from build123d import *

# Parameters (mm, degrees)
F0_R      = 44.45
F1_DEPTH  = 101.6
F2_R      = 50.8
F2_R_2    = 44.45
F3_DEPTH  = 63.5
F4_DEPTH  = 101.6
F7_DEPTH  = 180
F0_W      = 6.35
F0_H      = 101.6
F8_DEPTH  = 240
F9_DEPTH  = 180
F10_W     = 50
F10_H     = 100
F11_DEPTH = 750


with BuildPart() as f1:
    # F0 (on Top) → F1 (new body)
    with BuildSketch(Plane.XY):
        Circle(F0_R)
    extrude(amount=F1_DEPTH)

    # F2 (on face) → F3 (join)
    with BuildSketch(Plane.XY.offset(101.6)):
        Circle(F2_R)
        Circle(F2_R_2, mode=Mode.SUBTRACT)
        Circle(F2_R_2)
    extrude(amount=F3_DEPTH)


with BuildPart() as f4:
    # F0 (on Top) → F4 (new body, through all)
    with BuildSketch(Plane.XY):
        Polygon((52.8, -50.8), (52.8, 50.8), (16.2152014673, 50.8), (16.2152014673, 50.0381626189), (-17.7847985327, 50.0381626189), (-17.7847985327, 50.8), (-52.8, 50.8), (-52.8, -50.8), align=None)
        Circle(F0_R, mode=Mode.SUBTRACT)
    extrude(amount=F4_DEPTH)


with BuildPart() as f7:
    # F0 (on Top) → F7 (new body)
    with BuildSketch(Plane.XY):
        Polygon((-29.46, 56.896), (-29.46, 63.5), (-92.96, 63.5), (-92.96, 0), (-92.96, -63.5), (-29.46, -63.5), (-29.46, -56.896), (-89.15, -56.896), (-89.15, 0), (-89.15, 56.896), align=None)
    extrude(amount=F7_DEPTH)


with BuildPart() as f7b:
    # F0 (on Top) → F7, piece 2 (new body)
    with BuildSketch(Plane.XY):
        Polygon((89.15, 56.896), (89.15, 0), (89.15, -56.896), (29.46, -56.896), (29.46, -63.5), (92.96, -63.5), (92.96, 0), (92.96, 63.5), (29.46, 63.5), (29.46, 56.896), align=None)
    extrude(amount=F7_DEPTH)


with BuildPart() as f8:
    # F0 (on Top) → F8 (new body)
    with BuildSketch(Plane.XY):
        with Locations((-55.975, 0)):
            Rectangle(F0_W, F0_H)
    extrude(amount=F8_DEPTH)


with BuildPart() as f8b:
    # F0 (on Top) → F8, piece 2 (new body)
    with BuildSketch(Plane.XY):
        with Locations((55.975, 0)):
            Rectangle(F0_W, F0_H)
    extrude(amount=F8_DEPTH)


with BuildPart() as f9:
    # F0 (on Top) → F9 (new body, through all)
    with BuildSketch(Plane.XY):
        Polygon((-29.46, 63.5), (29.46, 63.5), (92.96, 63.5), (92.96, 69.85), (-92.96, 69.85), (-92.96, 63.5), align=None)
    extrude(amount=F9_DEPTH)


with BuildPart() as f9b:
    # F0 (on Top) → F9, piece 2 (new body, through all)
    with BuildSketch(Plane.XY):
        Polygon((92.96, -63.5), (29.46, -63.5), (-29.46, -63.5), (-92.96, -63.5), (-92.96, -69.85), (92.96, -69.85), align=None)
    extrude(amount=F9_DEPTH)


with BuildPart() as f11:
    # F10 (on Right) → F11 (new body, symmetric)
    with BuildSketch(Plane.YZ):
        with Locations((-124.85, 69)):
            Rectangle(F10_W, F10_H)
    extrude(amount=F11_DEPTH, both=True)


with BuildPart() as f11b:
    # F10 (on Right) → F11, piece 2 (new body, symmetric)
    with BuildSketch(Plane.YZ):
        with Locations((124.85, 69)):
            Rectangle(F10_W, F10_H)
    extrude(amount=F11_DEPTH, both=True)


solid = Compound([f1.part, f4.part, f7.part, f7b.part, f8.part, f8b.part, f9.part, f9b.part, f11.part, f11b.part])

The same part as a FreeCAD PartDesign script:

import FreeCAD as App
import Part
import Sketcher

V = App.Vector
Q = App.Units.Quantity

doc = App.newDocument("Part")
params = doc.addObject("Spreadsheet::Sheet", "Params")
for row, (alias, value) in enumerate([
    ("sketch1_diameter", "3.5 in"),
    ("pad1_length", "4 in"),
    ("sketch2_diameter", "4 in"),
    ("pad2_length", "2.5 in"),
    ("sketch3_diameter", "3.5 in"),
    ("sketch3_height", "4 in"),
    ("pad3_length", "4 in"),
    ("sketch4_height", "5 in"),
    ("sketch4_width", "2.5 in"),
    ("sketch4_width2", "2.35 in"),
    ("sketch4_height2", "0.26 in"),
    ("pad4_length", "180 mm"),
    ("sketch5_height", "5 in"),
    ("sketch5_width", "2.5 in"),
    ("sketch5_width2", "2.35 in"),
    ("sketch5_height2", "4.48 in"),
    ("pad5_length", "180 mm"),
    ("sketch6_height", "4 in"),
    ("sketch6_width", "0.25 in"),
    ("pad6_length", "240 mm"),
    ("sketch7_height", "4 in"),
    ("sketch7_width", "0.25 in"),
    ("pad7_length", "240 mm"),
    ("sketch8_height", "0.25 in"),
    ("pad8_length", "180 mm"),
    ("sketch9_height", "0.25 in"),
    ("pad9_length", "180 mm"),
    ("pad10_length", "1500 mm"),
    ("pad11_length", "1500 mm"),
], start=1):
    params.set(f"A{row}", alias)
    params.set(f"B{row}", "=" + value)
    params.setAlias(f"B{row}", alias)

body = doc.addObject("PartDesign::Body", "Body")

# Sketch on XY plane
sketch1 = body.newObject("Sketcher::SketchObject", "Sketch")
sketch1.AttachmentSupport = (doc.getObject("XY_Plane"), [""])
sketch1.MapMode = "FlatFace"
sketch1.addGeometry(Part.Circle(V(0, 0, 0), V(0, 0, 1), 44), False)
sketch1.addConstraint([
    Sketcher.Constraint("Coincident", 0, 3, -1, 1),
    Sketcher.Constraint("Diameter", 0, Q("3.5 in")),
])
sketch1.setExpression("Constraints[1]", "Params.sketch1_diameter")
pad1 = body.newObject("PartDesign::Pad", "Pad")
pad1.Profile = sketch1
pad1.setExpression("Length", "Params.pad1_length")

# Sketch on XY plane
sketch2 = body.newObject("Sketcher::SketchObject", "Sketch001")
sketch2.AttachmentSupport = (doc.getObject("XY_Plane"), [""])
sketch2.MapMode = "FlatFace"
sketch2.AttachmentOffset = App.Placement(V(0, 0, 4 * 25.4), App.Rotation())
sketch2.addGeometry(Part.Circle(V(0, 0, 0), V(0, 0, 1), 51), False)
sketch2.addConstraint([
    Sketcher.Constraint("Coincident", 0, 3, -1, 1),
    Sketcher.Constraint("Diameter", 0, Q("4 in")),
])
sketch2.setExpression("Constraints[1]", "Params.sketch2_diameter")
pad2 = body.newObject("PartDesign::Pad", "Pad001")
pad2.Profile = sketch2
pad2.setExpression("Length", "Params.pad2_length")
body2 = doc.addObject("PartDesign::Body", "Body001")

# Sketch on XY plane
sketch3 = body2.newObject("Sketcher::SketchObject", "Sketch002")
sketch3.AttachmentSupport = (doc.getObject("XY_Plane001"), [""])
sketch3.MapMode = "FlatFace"
sketch3.addGeometry([
    Part.LineSegment(V(52.8, -50.8, 0), V(52.8, 50.8, 0)),  # 0
    Part.LineSegment(V(52.8, 50.8, 0), V(16.2, 50.8, 0)),  # 1
    Part.LineSegment(V(16.2, 50.8, 0), V(16.2, 50, 0)),  # 2
    Part.LineSegment(V(16.2, 50, 0), V(-17.8, 50, 0)),  # 3
    Part.LineSegment(V(-17.8, 50, 0), V(-17.8, 50.8, 0)),  # 4
    Part.LineSegment(V(-17.8, 50.8, 0), V(-52.8, 50.8, 0)),  # 5
    Part.LineSegment(V(-52.8, 50.8, 0), V(-52.8, -50.8, 0)),  # 6
    Part.LineSegment(V(-52.8, -50.8, 0), V(52.8, -50.8, 0)),  # 7
    Part.Circle(V(0, 0, 0), V(0, 0, 1), 44.5),  # 8
], False)
sketch3.addConstraint([
    Sketcher.Constraint("Coincident", 0, 2, 1, 1),
    Sketcher.Constraint("Coincident", 1, 2, 2, 1),
    Sketcher.Constraint("Coincident", 2, 2, 3, 1),
    Sketcher.Constraint("Coincident", 3, 2, 4, 1),
    Sketcher.Constraint("Coincident", 4, 2, 5, 1),
    Sketcher.Constraint("Coincident", 5, 2, 6, 1),
    Sketcher.Constraint("Coincident", 6, 2, 7, 1),
    Sketcher.Constraint("Coincident", 7, 2, 0, 1),
    Sketcher.Constraint("Vertical", 0),
    Sketcher.Constraint("Horizontal", 1),
    Sketcher.Constraint("Vertical", 2),
    Sketcher.Constraint("Horizontal", 3),
    Sketcher.Constraint("Vertical", 4),
    Sketcher.Constraint("Horizontal", 5),
    Sketcher.Constraint("Vertical", 6),
    Sketcher.Constraint("Horizontal", 7),
    Sketcher.Constraint("Coincident", 8, 3, -1, 1),
    Sketcher.Constraint("Symmetric", 0, 2, 6, 2, -1, 1),
    Sketcher.Constraint("Horizontal", 1, 2, 4, 2),
    Sketcher.Constraint("Diameter", 8, Q("3.5 in")),
    Sketcher.Constraint("DistanceY", 0, 1, 0, 2, Q("4 in")),
    Sketcher.Constraint("DistanceX", 1, 2, 1, 1, Q("36.584799 mm")),
    Sketcher.Constraint("DistanceX", 3, 2, 3, 1, Q("34 mm")),
    Sketcher.Constraint("DistanceX", 5, 2, 5, 1, Q("35.015201 mm")),
    Sketcher.Constraint("DistanceY", 2, 2, 2, 1, Q("0.761837 mm")),
])
sketch3.setExpression("Constraints[19]", "Params.sketch3_diameter")
sketch3.setExpression("Constraints[20]", "Params.sketch3_height")
pad3 = body2.newObject("PartDesign::Pad", "Pad002")
pad3.Profile = sketch3
pad3.setExpression("Length", "Params.pad3_length")
body3 = doc.addObject("PartDesign::Body", "Body002")

# Sketch on XY plane
sketch4 = body3.newObject("Sketcher::SketchObject", "Sketch003")
sketch4.AttachmentSupport = (doc.getObject("XY_Plane002"), [""])
sketch4.MapMode = "FlatFace"
sketch4.addGeometry([
    Part.LineSegment(V(-29, 57, 0), V(-29, 64, 0)),  # 0
    Part.LineSegment(V(-29, 64, 0), V(-93, 64, 0)),  # 1
    Part.LineSegment(V(-93, 64, 0), V(-93, -64, 0)),  # 2
    Part.LineSegment(V(-93, -64, 0), V(-29, -64, 0)),  # 3
    Part.LineSegment(V(-29, -64, 0), V(-29, -57, 0)),  # 4
    Part.LineSegment(V(-29, -57, 0), V(-89, -57, 0)),  # 5
    Part.LineSegment(V(-89, -57, 0), V(-89, 57, 0)),  # 6
    Part.LineSegment(V(-89, 57, 0), V(-29, 57, 0)),  # 7
], False)
sketch4.addConstraint([
    Sketcher.Constraint("Coincident", 0, 2, 1, 1),
    Sketcher.Constraint("Coincident", 1, 2, 2, 1),
    Sketcher.Constraint("Coincident", 2, 2, 3, 1),
    Sketcher.Constraint("Coincident", 3, 2, 4, 1),
    Sketcher.Constraint("Coincident", 4, 2, 5, 1),
    Sketcher.Constraint("Coincident", 5, 2, 6, 1),
    Sketcher.Constraint("Coincident", 6, 2, 7, 1),
    Sketcher.Constraint("Coincident", 7, 2, 0, 1),
    Sketcher.Constraint("Vertical", 0),
    Sketcher.Constraint("Horizontal", 1),
    Sketcher.Constraint("Vertical", 2),
    Sketcher.Constraint("Horizontal", 3),
    Sketcher.Constraint("Vertical", 4),
    Sketcher.Constraint("Horizontal", 5),
    Sketcher.Constraint("Vertical", 6),
    Sketcher.Constraint("Horizontal", 7),
    Sketcher.Constraint("Symmetric", 0, 2, 3, 2, -1),
    Sketcher.Constraint("Equal", 0, 4),
    Sketcher.Constraint("DistanceY", 2, 2, 2, 1, Q("5 in")),
    Sketcher.Constraint("DistanceX", 1, 2, 1, 1, Q("2.5 in")),
    Sketcher.Constraint("DistanceX", 5, 2, 5, 1, Q("2.35 in")),
    Sketcher.Constraint("DistanceY", 0, 1, 0, 2, Q("0.26 in")),
    Sketcher.Constraint("DistanceX", 0, 2, -1, 1, Q("29.46 mm")),
])
sketch4.setExpression("Constraints[18]", "Params.sketch4_height")
sketch4.setExpression("Constraints[19]", "Params.sketch4_width")
sketch4.setExpression("Constraints[20]", "Params.sketch4_width2")
sketch4.setExpression("Constraints[21]", "Params.sketch4_height2")
pad4 = body3.newObject("PartDesign::Pad", "Pad003")
pad4.Profile = sketch4
pad4.setExpression("Length", "Params.pad4_length")
body4 = doc.addObject("PartDesign::Body", "Body003")

# Sketch on XY plane
sketch5 = body4.newObject("Sketcher::SketchObject", "Sketch004")
sketch5.AttachmentSupport = (doc.getObject("XY_Plane003"), [""])
sketch5.MapMode = "FlatFace"
sketch5.addGeometry([
    Part.LineSegment(V(89, 57, 0), V(89, -57, 0)),  # 0
    Part.LineSegment(V(89, -57, 0), V(29, -57, 0)),  # 1
    Part.LineSegment(V(29, -57, 0), V(29, -64, 0)),  # 2
    Part.LineSegment(V(29, -64, 0), V(93, -64, 0)),  # 3
    Part.LineSegment(V(93, -64, 0), V(93, 64, 0)),  # 4
    Part.LineSegment(V(93, 64, 0), V(29, 64, 0)),  # 5
    Part.LineSegment(V(29, 64, 0), V(29, 57, 0)),  # 6
    Part.LineSegment(V(29, 57, 0), V(89, 57, 0)),  # 7
], False)
sketch5.addConstraint([
    Sketcher.Constraint("Coincident", 0, 2, 1, 1),
    Sketcher.Constraint("Coincident", 1, 2, 2, 1),
    Sketcher.Constraint("Coincident", 2, 2, 3, 1),
    Sketcher.Constraint("Coincident", 3, 2, 4, 1),
    Sketcher.Constraint("Coincident", 4, 2, 5, 1),
    Sketcher.Constraint("Coincident", 5, 2, 6, 1),
    Sketcher.Constraint("Coincident", 6, 2, 7, 1),
    Sketcher.Constraint("Coincident", 7, 2, 0, 1),
    Sketcher.Constraint("Vertical", 0),
    Sketcher.Constraint("Horizontal", 1),
    Sketcher.Constraint("Vertical", 2),
    Sketcher.Constraint("Horizontal", 3),
    Sketcher.Constraint("Vertical", 4),
    Sketcher.Constraint("Horizontal", 5),
    Sketcher.Constraint("Vertical", 6),
    Sketcher.Constraint("Horizontal", 7),
    Sketcher.Constraint("Symmetric", 2, 2, 5, 2, -1),
    Sketcher.Constraint("Equal", 2, 6),
    Sketcher.Constraint("DistanceY", 4, 1, 4, 2, Q("5 in")),
    Sketcher.Constraint("DistanceX", 3, 1, 3, 2, Q("2.5 in")),
    Sketcher.Constraint("DistanceX", 1, 2, 1, 1, Q("2.35 in")),
    Sketcher.Constraint("DistanceY", 0, 2, 0, 1, Q("4.48 in")),
    Sketcher.Constraint("DistanceX", -1, 1, 0, 2, Q("89.15 mm")),
])
sketch5.setExpression("Constraints[18]", "Params.sketch5_height")
sketch5.setExpression("Constraints[19]", "Params.sketch5_width")
sketch5.setExpression("Constraints[20]", "Params.sketch5_width2")
sketch5.setExpression("Constraints[21]", "Params.sketch5_height2")
pad5 = body4.newObject("PartDesign::Pad", "Pad004")
pad5.Profile = sketch5
pad5.setExpression("Length", "Params.pad5_length")
body5 = doc.addObject("PartDesign::Body", "Body004")

# Sketch on XY plane
sketch6 = body5.newObject("Sketcher::SketchObject", "Sketch005")
sketch6.AttachmentSupport = (doc.getObject("XY_Plane004"), [""])
sketch6.MapMode = "FlatFace"
sketch6.addGeometry([
    Part.LineSegment(V(-59, 51, 0), V(-59, -51, 0)),
    Part.LineSegment(V(-59, -51, 0), V(-53, -51, 0)),
    Part.LineSegment(V(-53, -51, 0), V(-53, 51, 0)),
    Part.LineSegment(V(-53, 51, 0), V(-59, 51, 0)),
], False)
sketch6.addConstraint([
    Sketcher.Constraint("Coincident", 0, 2, 1, 1),
    Sketcher.Constraint("Coincident", 1, 2, 2, 1),
    Sketcher.Constraint("Coincident", 2, 2, 3, 1),
    Sketcher.Constraint("Coincident", 3, 2, 0, 1),
    Sketcher.Constraint("Vertical", 0),
    Sketcher.Constraint("Horizontal", 1),
    Sketcher.Constraint("Vertical", 2),
    Sketcher.Constraint("Horizontal", 3),
    Sketcher.Constraint("DistanceY", 0, 2, 0, 1, Q("4 in")),
    Sketcher.Constraint("DistanceY", 0, 2, -1, 1, Q("2 in")),
    Sketcher.Constraint("DistanceX", 1, 1, 1, 2, Q("0.25 in")),
    Sketcher.Constraint("DistanceX", 0, 2, -1, 1, Q("59.15 mm")),
])
sketch6.setExpression("Constraints[8]", "Params.sketch6_height")
sketch6.setExpression("Constraints[10]", "Params.sketch6_width")
pad6 = body5.newObject("PartDesign::Pad", "Pad005")
pad6.Profile = sketch6
pad6.setExpression("Length", "Params.pad6_length")
body6 = doc.addObject("PartDesign::Body", "Body005")

# Sketch on XY plane
sketch7 = body6.newObject("Sketcher::SketchObject", "Sketch006")
sketch7.AttachmentSupport = (doc.getObject("XY_Plane005"), [""])
sketch7.MapMode = "FlatFace"
sketch7.addGeometry([
    Part.LineSegment(V(53, 51, 0), V(53, -51, 0)),
    Part.LineSegment(V(53, -51, 0), V(59, -51, 0)),
    Part.LineSegment(V(59, -51, 0), V(59, 51, 0)),
    Part.LineSegment(V(59, 51, 0), V(53, 51, 0)),
], False)
sketch7.addConstraint([
    Sketcher.Constraint("Coincident", 0, 2, 1, 1),
    Sketcher.Constraint("Coincident", 1, 2, 2, 1),
    Sketcher.Constraint("Coincident", 2, 2, 3, 1),
    Sketcher.Constraint("Coincident", 3, 2, 0, 1),
    Sketcher.Constraint("Vertical", 0),
    Sketcher.Constraint("Horizontal", 1),
    Sketcher.Constraint("Vertical", 2),
    Sketcher.Constraint("Horizontal", 3),
    Sketcher.Constraint("DistanceY", 0, 2, 0, 1, Q("4 in")),
    Sketcher.Constraint("DistanceY", 0, 2, -1, 1, Q("2 in")),
    Sketcher.Constraint("DistanceX", 1, 1, 1, 2, Q("0.25 in")),
    Sketcher.Constraint("DistanceX", -1, 1, 0, 2, Q("52.8 mm")),
])
sketch7.setExpression("Constraints[8]", "Params.sketch7_height")
sketch7.setExpression("Constraints[10]", "Params.sketch7_width")
pad7 = body6.newObject("PartDesign::Pad", "Pad006")
pad7.Profile = sketch7
pad7.setExpression("Length", "Params.pad7_length")
body7 = doc.addObject("PartDesign::Body", "Body006")

# Sketch on XY plane
sketch8 = body7.newObject("Sketcher::SketchObject", "Sketch007")
sketch8.AttachmentSupport = (doc.getObject("XY_Plane006"), [""])
sketch8.MapMode = "FlatFace"
sketch8.addGeometry([
    Part.LineSegment(V(93, 64, 0), V(93, 70, 0)),
    Part.LineSegment(V(93, 70, 0), V(-93, 70, 0)),
    Part.LineSegment(V(-93, 70, 0), V(-93, 64, 0)),
    Part.LineSegment(V(-93, 64, 0), V(93, 64, 0)),
], False)
sketch8.addConstraint([
    Sketcher.Constraint("Coincident", 0, 2, 1, 1),
    Sketcher.Constraint("Coincident", 1, 2, 2, 1),
    Sketcher.Constraint("Coincident", 2, 2, 3, 1),
    Sketcher.Constraint("Coincident", 3, 2, 0, 1),
    Sketcher.Constraint("Vertical", 0),
    Sketcher.Constraint("Horizontal", 1),
    Sketcher.Constraint("Vertical", 2),
    Sketcher.Constraint("Horizontal", 3),
    Sketcher.Constraint("DistanceY", 0, 1, 0, 2, Q("0.25 in")),
    Sketcher.Constraint("DistanceY", -1, 1, 2, 2, Q("2.5 in")),
    Sketcher.Constraint("DistanceX", 1, 2, 1, 1, Q("185.92 mm")),
    Sketcher.Constraint("DistanceX", -1, 1, 0, 2, Q("92.96 mm")),
])
sketch8.setExpression("Constraints[8]", "Params.sketch8_height")
pad8 = body7.newObject("PartDesign::Pad", "Pad007")
pad8.Profile = sketch8
pad8.setExpression("Length", "Params.pad8_length")
body8 = doc.addObject("PartDesign::Body", "Body007")

# Sketch on XY plane
sketch9 = body8.newObject("Sketcher::SketchObject", "Sketch008")
sketch9.AttachmentSupport = (doc.getObject("XY_Plane007"), [""])
sketch9.MapMode = "FlatFace"
sketch9.addGeometry([
    Part.LineSegment(V(93, -64, 0), V(-93, -64, 0)),
    Part.LineSegment(V(-93, -64, 0), V(-93, -70, 0)),
    Part.LineSegment(V(-93, -70, 0), V(93, -70, 0)),
    Part.LineSegment(V(93, -70, 0), V(93, -64, 0)),
], False)
sketch9.addConstraint([
    Sketcher.Constraint("Coincident", 0, 2, 1, 1),
    Sketcher.Constraint("Coincident", 1, 2, 2, 1),
    Sketcher.Constraint("Coincident", 2, 2, 3, 1),
    Sketcher.Constraint("Coincident", 3, 2, 0, 1),
    Sketcher.Constraint("Horizontal", 0),
    Sketcher.Constraint("Vertical", 1),
    Sketcher.Constraint("Horizontal", 2),
    Sketcher.Constraint("Vertical", 3),
    Sketcher.Constraint("DistanceY", 1, 2, 1, 1, Q("0.25 in")),
    Sketcher.Constraint("DistanceY", 0, 2, -1, 1, Q("2.5 in")),
    Sketcher.Constraint("DistanceX", 0, 2, 0, 1, Q("185.92 mm")),
    Sketcher.Constraint("DistanceX", 0, 2, -1, 1, Q("92.96 mm")),
])
sketch9.setExpression("Constraints[8]", "Params.sketch9_height")
pad9 = body8.newObject("PartDesign::Pad", "Pad008")
pad9.Profile = sketch9
pad9.setExpression("Length", "Params.pad9_length")
body9 = doc.addObject("PartDesign::Body", "Body008")

# Sketch on YZ plane
sketch10 = body9.newObject("Sketcher::SketchObject", "Sketch009")
sketch10.AttachmentSupport = (doc.getObject("YZ_Plane008"), [""])
sketch10.MapMode = "FlatFace"
sketch10.addGeometry([
    Part.LineSegment(V(-150, 119, 0), V(-150, 19, 0)),
    Part.LineSegment(V(-150, 19, 0), V(-100, 19, 0)),
    Part.LineSegment(V(-100, 19, 0), V(-100, 119, 0)),
    Part.LineSegment(V(-100, 119, 0), V(-150, 119, 0)),
], False)
sketch10.addConstraint([
    Sketcher.Constraint("Coincident", 0, 2, 1, 1),
    Sketcher.Constraint("Coincident", 1, 2, 2, 1),
    Sketcher.Constraint("Coincident", 2, 2, 3, 1),
    Sketcher.Constraint("Coincident", 3, 2, 0, 1),
    Sketcher.Constraint("Vertical", 0),
    Sketcher.Constraint("Horizontal", 1),
    Sketcher.Constraint("Vertical", 2),
    Sketcher.Constraint("Horizontal", 3),
    Sketcher.Constraint("DistanceX", 1, 1, 1, 2, Q("50 mm")),
    Sketcher.Constraint("DistanceY", 0, 2, 0, 1, Q("100 mm")),
    Sketcher.Constraint("DistanceX", 0, 2, -1, 1, Q("149.85 mm")),
    Sketcher.Constraint("DistanceY", -1, 1, 0, 2, Q("19 mm")),
])
pad10 = body9.newObject("PartDesign::Pad", "Pad009")
pad10.Profile = sketch10
pad10.setExpression("Length", "Params.pad10_length")
pad10.Midplane = True
body10 = doc.addObject("PartDesign::Body", "Body009")

# Sketch on YZ plane
sketch11 = body10.newObject("Sketcher::SketchObject", "Sketch010")
sketch11.AttachmentSupport = (doc.getObject("YZ_Plane009"), [""])
sketch11.MapMode = "FlatFace"
sketch11.addGeometry([
    Part.LineSegment(V(100, 119, 0), V(100, 19, 0)),
    Part.LineSegment(V(100, 19, 0), V(150, 19, 0)),
    Part.LineSegment(V(150, 19, 0), V(150, 119, 0)),
    Part.LineSegment(V(150, 119, 0), V(100, 119, 0)),
], False)
sketch11.addConstraint([
    Sketcher.Constraint("Coincident", 0, 2, 1, 1),
    Sketcher.Constraint("Coincident", 1, 2, 2, 1),
    Sketcher.Constraint("Coincident", 2, 2, 3, 1),
    Sketcher.Constraint("Coincident", 3, 2, 0, 1),
    Sketcher.Constraint("Vertical", 0),
    Sketcher.Constraint("Horizontal", 1),
    Sketcher.Constraint("Vertical", 2),
    Sketcher.Constraint("Horizontal", 3),
    Sketcher.Constraint("DistanceX", 1, 1, 1, 2, Q("50 mm")),
    Sketcher.Constraint("DistanceY", 0, 2, 0, 1, Q("100 mm")),
    Sketcher.Constraint("DistanceX", -1, 1, 0, 2, Q("99.85 mm")),
    Sketcher.Constraint("DistanceY", -1, 1, 0, 2, Q("19 mm")),
])
pad11 = body10.newObject("PartDesign::Pad", "Pad010")
pad11.Profile = sketch11
pad11.setExpression("Length", "Params.pad11_length")
pad11.Midplane = True

doc.recompute()
